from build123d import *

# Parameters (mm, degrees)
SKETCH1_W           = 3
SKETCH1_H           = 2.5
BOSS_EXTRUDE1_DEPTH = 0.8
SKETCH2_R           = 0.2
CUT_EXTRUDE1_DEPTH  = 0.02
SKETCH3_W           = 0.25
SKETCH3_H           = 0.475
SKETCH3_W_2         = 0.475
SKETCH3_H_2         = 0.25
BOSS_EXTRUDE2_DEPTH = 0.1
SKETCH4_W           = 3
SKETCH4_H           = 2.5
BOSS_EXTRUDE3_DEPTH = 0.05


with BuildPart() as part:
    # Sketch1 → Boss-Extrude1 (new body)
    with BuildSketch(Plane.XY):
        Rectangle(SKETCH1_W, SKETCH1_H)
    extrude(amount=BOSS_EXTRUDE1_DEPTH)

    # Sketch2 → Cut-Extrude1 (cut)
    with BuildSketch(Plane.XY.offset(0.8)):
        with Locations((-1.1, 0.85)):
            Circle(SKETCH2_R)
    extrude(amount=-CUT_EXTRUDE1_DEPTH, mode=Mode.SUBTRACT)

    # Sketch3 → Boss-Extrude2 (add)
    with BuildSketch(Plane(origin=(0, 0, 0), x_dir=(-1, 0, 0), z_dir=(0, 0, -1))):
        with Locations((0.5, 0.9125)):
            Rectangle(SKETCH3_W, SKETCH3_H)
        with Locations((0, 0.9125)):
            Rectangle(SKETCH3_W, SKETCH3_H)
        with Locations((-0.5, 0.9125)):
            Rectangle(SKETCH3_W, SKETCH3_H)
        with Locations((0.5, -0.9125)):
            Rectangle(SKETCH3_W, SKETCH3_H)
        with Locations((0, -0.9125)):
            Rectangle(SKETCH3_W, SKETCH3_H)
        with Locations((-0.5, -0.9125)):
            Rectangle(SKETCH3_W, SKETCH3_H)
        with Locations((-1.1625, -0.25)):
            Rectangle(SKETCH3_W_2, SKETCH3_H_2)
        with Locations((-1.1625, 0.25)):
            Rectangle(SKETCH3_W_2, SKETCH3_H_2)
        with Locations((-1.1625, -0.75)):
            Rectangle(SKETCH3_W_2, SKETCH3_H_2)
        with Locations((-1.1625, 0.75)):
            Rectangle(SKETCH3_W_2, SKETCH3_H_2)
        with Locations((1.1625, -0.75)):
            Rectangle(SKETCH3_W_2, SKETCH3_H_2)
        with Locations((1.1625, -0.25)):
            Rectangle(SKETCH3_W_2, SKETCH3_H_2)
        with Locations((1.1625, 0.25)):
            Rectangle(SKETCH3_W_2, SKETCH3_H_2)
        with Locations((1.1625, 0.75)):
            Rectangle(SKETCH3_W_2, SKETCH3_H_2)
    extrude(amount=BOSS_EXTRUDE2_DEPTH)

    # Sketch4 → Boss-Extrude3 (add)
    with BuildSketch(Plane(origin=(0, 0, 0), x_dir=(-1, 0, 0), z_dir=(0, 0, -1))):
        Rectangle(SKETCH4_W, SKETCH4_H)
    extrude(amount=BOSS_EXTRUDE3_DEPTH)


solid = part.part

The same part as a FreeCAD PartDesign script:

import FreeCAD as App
import Part
import Sketcher
Q = App.Units.Quantity


def add_polygon(sketch, points):
    """Adds a closed chain of lines whose ends are joined by coincident constraints."""
    first, n = sketch.GeometryCount, len(points)
    for a, b in zip(points, points[1:] + points[:1]):
        sketch.addGeometry(Part.LineSegment(App.Vector(*a, 0), App.Vector(*b, 0)), False)
    for i in range(n):
        sketch.addConstraint(Sketcher.Constraint("Coincident", first + i, 2, first + (i + 1) % n, 1))

doc = App.newDocument("Part")
body = doc.addObject("PartDesign::Body", "Body")

sketch1 = body.newObject("Sketcher::SketchObject", "Sketch")
sketch1.AttachmentSupport = (doc.getObject("XY_Plane"), [""])
sketch1.MapMode = "FlatFace"
add_polygon(sketch1, [(-1.5, 1.2), (-1.5, -1.2), (1.5, -1.2), (1.5, 1.2)])
sketch1.addConstraint(Sketcher.Constraint("Vertical", 0))
sketch1.addConstraint(Sketcher.Constraint("Horizontal", 1))
sketch1.addConstraint(Sketcher.Constraint("Vertical", 2))
sketch1.addConstraint(Sketcher.Constraint("Horizontal", 3))
sketch1.addConstraint(Sketcher.Constraint("Symmetric", 0, 2, 2, 2, -1, 1))
sketch1.addConstraint(Sketcher.Constraint("DistanceX", 1, 1, 1, 2, Q("3 mm")))
sketch1.addConstraint(Sketcher.Constraint("DistanceY", 0, 2, 0, 1, Q("2.5 mm")))
pad1 = body.newObject("PartDesign::Pad", "Pad")
pad1.Profile = sketch1
pad1.Length = 0.8

sketch2 = body.newObject("Sketcher::SketchObject", "Sketch001")
sketch2.AttachmentSupport = (doc.getObject("XY_Plane"), [""])
sketch2.MapMode = "FlatFace"
sketch2.AttachmentOffset = App.Placement(App.Vector(0, 0, 0.8), App.Rotation())
sketch2.addGeometry(Part.Circle(App.Vector(-1.1, 0.85, 0), App.Vector(0, 0, 1), 0.2), False)
sketch2.addConstraint(Sketcher.Constraint("Diameter", 0, Q("0.4 mm")))
sketch2.addConstraint(Sketcher.Constraint("DistanceX", 0, 3, -1, 1, Q("1.1 mm")))
sketch2.addConstraint(Sketcher.Constraint("DistanceY", -1, 1, 0, 3, Q("0.85 mm")))
pocket1 = body.newObject("PartDesign::Pocket", "Pocket")
pocket1.Profile = sketch2
pocket1.Length = 0.02

sketch3 = body.newObject("Sketcher::SketchObject", "Sketch002")
sketch3.AttachmentSupport = (doc.getObject("XY_Plane"), [""])
sketch3.MapMode = "FlatFace"
add_polygon(sketch3, [(-0.38, 1.15), (-0.38, 0.68), (-0.62, 0.68), (-0.62, 1.15)])
add_polygon(sketch3, [(0.12, 1.15), (0.12, 0.68), (-0.12, 0.68), (-0.12, 1.15)])
add_polygon(sketch3, [(0.62, 1.15), (0.62, 0.68), (0.38, 0.68), (0.38, 1.15)])
add_polygon(sketch3, [(-0.38, -0.68), (-0.38, -1.15), (-0.62, -1.15), (-0.62, -0.68)])
add_polygon(sketch3, [(0.12, -0.68), (0.12, -1.15), (-0.12, -1.15), (-0.12, -0.68)])
add_polygon(sketch3, [(0.62, -0.68), (0.62, -1.15), (0.38, -1.15), (0.38, -0.68)])
add_polygon(sketch3, [(1.4, -0.12), (1.4, -0.38), (0.93, -0.38), (0.93, -0.12)])
add_polygon(sketch3, [(1.4, 0.38), (1.4, 0.12), (0.93, 0.12), (0.93, 0.38)])
add_polygon(sketch3, [(1.4, -0.62), (1.4, -0.88), (0.93, -0.88), (0.93, -0.62)])
add_polygon(sketch3, [(1.4, 0.88), (1.4, 0.62), (0.93, 0.62), (0.93, 0.88)])
add_polygon(sketch3, [(-0.93, -0.62), (-0.93, -0.88), (-1.4, -0.88), (-1.4, -0.62)])
add_polygon(sketch3, [(-0.93, -0.12), (-0.93, -0.38), (-1.4, -0.38), (-1.4, -0.12)])
add_polygon(sketch3, [(-0.93, 0.38), (-0.93, 0.12), (-1.4, 0.12), (-1.4, 0.38)])
add_polygon(sketch3, [(-0.93, 0.88), (-0.93, 0.62), (-1.4, 0.62), (-1.4, 0.88)])
sketch3.addConstraint(Sketcher.Constraint("Vertical", 0))
sketch3.addConstraint(Sketcher.Constraint("Horizontal", 1))
sketch3.addConstraint(Sketcher.Constraint("Vertical", 2))
sketch3.addConstraint(Sketcher.Constraint("Horizontal", 3))
sketch3.addConstraint(Sketcher.Constraint("Vertical", 4))
sketch3.addConstraint(Sketcher.Constraint("Horizontal", 5))
sketch3.addConstraint(Sketcher.Constraint("Vertical", 6))
sketch3.addConstraint(Sketcher.Constraint("Horizontal", 7))
sketch3.addConstraint(Sketcher.Constraint("Vertical", 8))
sketch3.addConstraint(Sketcher.Constraint("Horizontal", 9))
sketch3.addConstraint(Sketcher.Constraint("Vertical", 10))
sketch3.addConstraint(Sketcher.Constraint("Horizontal", 11))
sketch3.addConstraint(Sketcher.Constraint("Vertical", 12))
sketch3.addConstraint(Sketcher.Constraint("Horizontal", 13))
sketch3.addConstraint(Sketcher.Constraint("Vertical", 14))
sketch3.addConstraint(Sketcher.Constraint("Horizontal", 15))
sketch3.addConstraint(Sketcher.Constraint("Vertical", 16))
sketch3.addConstraint(Sketcher.Constraint("Horizontal", 17))
sketch3.addConstraint(Sketcher.Constraint("Vertical", 18))
sketch3.addConstraint(Sketcher.Constraint("Horizontal", 19))
sketch3.addConstraint(Sketcher.Constraint("Vertical", 20))
sketch3.addConstraint(Sketcher.Constraint("Horizontal", 21))
sketch3.addConstraint(Sketcher.Constraint("Vertical", 22))
sketch3.addConstraint(Sketcher.Constraint("Horizontal", 23))
sketch3.addConstraint(Sketcher.Constraint("Vertical", 24))
sketch3.addConstraint(Sketcher.Constraint("Horizontal", 25))
sketch3.addConstraint(Sketcher.Constraint("Vertical", 26))
sketch3.addConstraint(Sketcher.Constraint("Horizontal", 27))
sketch3.addConstraint(Sketcher.Constraint("Vertical", 28))
sketch3.addConstraint(Sketcher.Constraint("Horizontal", 29))
sketch3.addConstraint(Sketcher.Constraint("Vertical", 30))
sketch3.addConstraint(Sketcher.Constraint("Horizontal", 31))
sketch3.addConstraint(Sketcher.Constraint("Vertical", 32))
sketch3.addConstraint(Sketcher.Constraint("Horizontal", 33))
sketch3.addConstraint(Sketcher.Constraint("Vertical", 34))
sketch3.addConstraint(Sketcher.Constraint("Horizontal", 35))
sketch3.addConstraint(Sketcher.Constraint("Vertical", 36))
sketch3.addConstraint(Sketcher.Constraint("Horizontal", 37))
sketch3.addConstraint(Sketcher.Constraint("Vertical", 38))
sketch3.addConstraint(Sketcher.Constraint("Horizontal", 39))
sketch3.addConstraint(Sketcher.Constraint("Vertical", 40))
sketch3.addConstraint(Sketcher.Constraint("Horizontal", 41))
sketch3.addConstraint(Sketcher.Constraint("Vertical", 42))
sketch3.addConstraint(Sketcher.Constraint("Horizontal", 43))
sketch3.addConstraint(Sketcher.Constraint("Vertical", 44))
sketch3.addConstraint(Sketcher.Constraint("Horizontal", 45))
sketch3.addConstraint(Sketcher.Constraint("Vertical", 46))
sketch3.addConstraint(Sketcher.Constraint("Horizontal", 47))
sketch3.addConstraint(Sketcher.Constraint("Vertical", 48))
sketch3.addConstraint(Sketcher.Constraint("Horizontal", 49))
sketch3.addConstraint(Sketcher.Constraint("Vertical", 50))
sketch3.addConstraint(Sketcher.Constraint("Horizontal", 51))
sketch3.addConstraint(Sketcher.Constraint("Vertical", 52))
sketch3.addConstraint(Sketcher.Constraint("Horizontal", 53))
sketch3.addConstraint(Sketcher.Constraint("Vertical", 54))
sketch3.addConstraint(Sketcher.Constraint("Horizontal", 55))
sketch3.addConstraint(Sketcher.Constraint("Symmetric", 10, 2, 12, 2, -1, 1))
sketch3.addConstraint(Sketcher.Constraint("Symmetric", 8, 2, 14, 2, -1, 1))
sketch3.addConstraint(Sketcher.Constraint("Symmetric", 6, 2, 16, 2, -1, 1))
sketch3.addConstraint(Sketcher.Constraint("Symmetric", 4, 2, 18, 2, -1, 1))
sketch3.addConstraint(Sketcher.Constraint("Symmetric", 2, 2, 20, 2, -1, 1))
sketch3.addConstraint(Sketcher.Constraint("Symmetric", 0, 2, 22, 2, -1, 1))
sketch3.addConstraint(Sketcher.Constraint("Symmetric", 38, 2, 40, 2, -1, 1))
sketch3.addConstraint(Sketcher.Constraint("Symmetric", 36, 2, 42, 2, -1, 1))
sketch3.addConstraint(Sketcher.Constraint("Symmetric", 30, 2, 44, 2, -1, 1))
sketch3.addConstraint(Sketcher.Constraint("Symmetric", 28, 2, 46, 2, -1, 1))
sketch3.addConstraint(Sketcher.Constraint("Symmetric", 26, 2, 48, 2, -1, 1))
sketch3.addConstraint(Sketcher.Constraint("Symmetric", 24, 2, 50, 2, -1, 1))
sketch3.addConstraint(Sketcher.Constraint("Symmetric", 34, 2, 52, 2, -1, 1))
sketch3.addConstraint(Sketcher.Constraint("Symmetric", 32, 2, 54, 2, -1, 1))
sketch3.addConstraint(Sketcher.Constraint("Symmetric", 1, 2, 8, 2, -2))
sketch3.addConstraint(Sketcher.Constraint("Symmetric", 3, 2, 10, 2, -2))
sketch3.addConstraint(Sketcher.Constraint("Symmetric", 33, 2, 40, 2, -2))
sketch3.addConstraint(Sketcher.Constraint("Symmetric", 35, 2, 42, 2, -2))
sketch3.addConstraint(Sketcher.Constraint("Symmetric", 25, 2, 44, 2, -2))
sketch3.addConstraint(Sketcher.Constraint("Symmetric", 27, 2, 46, 2, -2))
sketch3.addConstraint(Sketcher.Constraint("Horizontal", 1, 2, 4, 2))
sketch3.addConstraint(Sketcher.Constraint("Horizontal", 3, 2, 6, 2))
sketch3.addConstraint(Sketcher.Constraint("Vertical", 7, 2, 16, 2))
sketch3.addConstraint(Sketcher.Constraint("Vertical", 31, 2, 32, 2))
sketch3.addConstraint(Sketcher.Constraint("Vertical", 30, 2, 33, 2))
sketch3.addConstraint(Sketcher.Constraint("Equal", 3, 5))
sketch3.addConstraint(Sketcher.Constraint("Equal", 55, 0))
sketch3.addConstraint(Sketcher.Constraint("Equal", 23, 24))
sketch3.addConstraint(Sketcher.Constraint("Equal", 30, 32))
sketch3.addConstraint(Sketcher.Constraint("DistanceX", 0, 2, 8, 2, Q("1 mm")))
sketch3.addConstraint(Sketcher.Constraint("DistanceX", 1, 2, 1, 1, Q("0.25 mm")))
sketch3.addConstraint(Sketcher.Constraint("DistanceX", -1, 1, 24, 2, Q("1.4 mm")))
sketch3.addConstraint(Sketcher.Constraint("DistanceY", 23, 2, 24, 2, Q("0.3 mm")))
sketch3.addConstraint(Sketcher.Constraint("DistanceX", 23, 2, 25, 2, Q("0.3 mm")))
sketch3.addConstraint(Sketcher.Constraint("DistanceY", 26, 2, 8, 2, Q("0.8 mm")))
sketch3.addConstraint(Sketcher.Constraint("DistanceY", 32, 2, 24, 2, Q("0.5 mm")))
pad2 = body.newObject("PartDesign::Pad", "Pad001")
pad2.Profile = sketch3
pad2.Length = 0.1
pad2.Reversed = True

sketch4 = body.newObject("Sketcher::SketchObject", "Sketch003")
sketch4.AttachmentSupport = (doc.getObject("XY_Plane"), [""])
sketch4.MapMode = "FlatFace"
add_polygon(sketch4, [(1.5, 1.2), (1.5, -1.2), (-1.5, -1.2), (-1.5, 1.2)])
sketch4.addConstraint(Sketcher.Constraint("Vertical", 0))
sketch4.addConstraint(Sketcher.Constraint("Horizontal", 1))
sketch4.addConstraint(Sketcher.Constraint("Vertical", 2))
sketch4.addConstraint(Sketcher.Constraint("Horizontal", 3))
sketch4.addConstraint(Sketcher.Constraint("Symmetric", 0, 2, 2, 2, -1, 1))
sketch4.addConstraint(Sketcher.Constraint("DistanceX", 1, 2, 1, 1, Q("3 mm")))
sketch4.addConstraint(Sketcher.Constraint("DistanceY", 0, 2, 0, 1, Q("2.5 mm")))
pad3 = body.newObject("PartDesign::Pad", "Pad002")
pad3.Profile = sketch4
pad3.Length = 0.05
pad3.Reversed = True

doc.recompute()
